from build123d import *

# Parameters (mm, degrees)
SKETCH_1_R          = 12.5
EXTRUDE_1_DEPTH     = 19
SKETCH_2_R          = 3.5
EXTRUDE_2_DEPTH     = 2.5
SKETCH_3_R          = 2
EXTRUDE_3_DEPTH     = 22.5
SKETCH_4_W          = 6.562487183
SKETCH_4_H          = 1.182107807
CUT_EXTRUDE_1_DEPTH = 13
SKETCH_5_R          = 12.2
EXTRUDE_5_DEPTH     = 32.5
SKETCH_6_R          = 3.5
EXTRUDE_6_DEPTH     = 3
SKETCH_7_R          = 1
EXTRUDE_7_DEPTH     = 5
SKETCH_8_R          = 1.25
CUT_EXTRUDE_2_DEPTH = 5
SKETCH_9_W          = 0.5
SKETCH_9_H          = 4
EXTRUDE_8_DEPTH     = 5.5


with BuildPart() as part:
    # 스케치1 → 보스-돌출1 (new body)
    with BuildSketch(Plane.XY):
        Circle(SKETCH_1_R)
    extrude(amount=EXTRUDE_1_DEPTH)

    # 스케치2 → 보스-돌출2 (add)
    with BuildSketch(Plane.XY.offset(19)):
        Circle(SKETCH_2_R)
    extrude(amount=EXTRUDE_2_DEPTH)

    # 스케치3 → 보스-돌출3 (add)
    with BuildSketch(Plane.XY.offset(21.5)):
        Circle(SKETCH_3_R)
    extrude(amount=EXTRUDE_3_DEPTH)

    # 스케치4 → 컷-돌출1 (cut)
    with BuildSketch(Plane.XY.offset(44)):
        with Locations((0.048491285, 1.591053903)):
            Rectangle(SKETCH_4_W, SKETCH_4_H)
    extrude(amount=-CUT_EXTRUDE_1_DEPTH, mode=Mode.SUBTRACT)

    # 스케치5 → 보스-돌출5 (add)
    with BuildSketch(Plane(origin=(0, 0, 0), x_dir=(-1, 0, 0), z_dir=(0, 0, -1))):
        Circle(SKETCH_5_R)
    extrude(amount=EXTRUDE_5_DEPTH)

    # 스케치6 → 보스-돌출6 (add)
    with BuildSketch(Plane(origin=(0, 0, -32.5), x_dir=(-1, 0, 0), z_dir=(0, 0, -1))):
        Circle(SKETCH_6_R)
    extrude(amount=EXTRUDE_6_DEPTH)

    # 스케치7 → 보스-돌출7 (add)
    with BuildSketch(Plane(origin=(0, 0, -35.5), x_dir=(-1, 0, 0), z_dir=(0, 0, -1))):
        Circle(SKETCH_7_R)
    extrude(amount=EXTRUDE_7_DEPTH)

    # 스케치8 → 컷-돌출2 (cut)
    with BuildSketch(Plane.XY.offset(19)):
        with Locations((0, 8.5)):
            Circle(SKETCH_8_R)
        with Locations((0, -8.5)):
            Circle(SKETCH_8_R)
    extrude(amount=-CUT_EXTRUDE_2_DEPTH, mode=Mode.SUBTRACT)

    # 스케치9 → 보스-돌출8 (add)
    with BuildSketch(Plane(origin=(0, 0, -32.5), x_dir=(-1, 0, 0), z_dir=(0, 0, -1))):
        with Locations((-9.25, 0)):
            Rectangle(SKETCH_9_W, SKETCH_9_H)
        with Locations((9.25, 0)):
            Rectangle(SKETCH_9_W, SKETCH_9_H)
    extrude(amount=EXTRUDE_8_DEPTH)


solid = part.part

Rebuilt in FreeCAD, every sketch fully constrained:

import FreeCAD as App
import Part
import Sketcher
from FreeCAD import Vector


def add_polygon(sketch, points):
    """Adds a closed chain of lines whose ends are joined by coincident constraints."""
    first, n = sketch.GeometryCount, len(points)
    for a, b in zip(points, points[1:] + points[:1]):
        sketch.addGeometry(Part.LineSegment(App.Vector(*a, 0), App.Vector(*b, 0)), False)
    for i in range(n):
        sketch.addConstraint(Sketcher.Constraint("Coincident", first + i, 2, first + (i + 1) % n, 1))

doc = App.newDocument("Part")
body = doc.addObject("PartDesign::Body", "Body")

sketch1 = doc.addObject("Sketcher::SketchObject", "Sketch")
body.addObject(sketch1)
sketch1.AttachmentSupport = (doc.XY_Plane, [""])
sketch1.MapMode = "FlatFace"
sketch1.addGeometry(Part.Circle(Vector(0, 0, 0), Vector(0, 0, 1), 12), False)
sketch1.addConstraint([
    Sketcher.Constraint("Coincident", 0, 3, -1, 1),
    Sketcher.Constraint("Diameter", 0, 25.0),
])
pad1 = doc.addObject("PartDesign::Pad", "Pad")
body.addObject(pad1)
pad1.Profile = sketch1
pad1.Length = 19

sketch2 = doc.addObject("Sketcher::SketchObject", "Sketch001")
body.addObject(sketch2)
sketch2.AttachmentSupport = (doc.XY_Plane, [""])
sketch2.MapMode = "FlatFace"
sketch2.AttachmentOffset = App.Placement(Vector(0, 0, 19), App.Rotation())
sketch2.addGeometry(Part.Circle(Vector(0, 0, 0), Vector(0, 0, 1), 3.5), False)
sketch2.addConstraint([
    Sketcher.Constraint("Coincident", 0, 3, -1, 1),
    Sketcher.Constraint("Diameter", 0, 7.0),
])
pad2 = doc.addObject("PartDesign::Pad", "Pad001")
body.addObject(pad2)
pad2.Profile = sketch2
pad2.Length = 2.5

sketch3 = doc.addObject("Sketcher::SketchObject", "Sketch002")
body.addObject(sketch3)
sketch3.AttachmentSupport = (doc.XY_Plane, [""])
sketch3.MapMode = "FlatFace"
sketch3.AttachmentOffset = App.Placement(Vector(0, 0, 21.5), App.Rotation())
sketch3.addGeometry(Part.Circle(Vector(0, 0, 0), Vector(0, 0, 1), 2), False)
sketch3.addConstraint([
    Sketcher.Constraint("Coincident", 0, 3, -1, 1),
    Sketcher.Constraint("Diameter", 0, 4.0),
])
pad3 = doc.addObject("PartDesign::Pad", "Pad002")
body.addObject(pad3)
pad3.Profile = sketch3
pad3.Length = 22.5

sketch4 = doc.addObject("Sketcher::SketchObject", "Sketch003")
body.addObject(sketch4)
sketch4.AttachmentSupport = (doc.XY_Plane, [""])
sketch4.MapMode = "FlatFace"
sketch4.AttachmentOffset = App.Placement(Vector(0, 0, 44), App.Rotation())
add_polygon(sketch4, [(-3.2, 2.2), (-3.2, 1), (3.3, 1), (3.3, 2.2)])
sketch4.addConstraint([
    Sketcher.Constraint("Vertical", 0),
    Sketcher.Constraint("Horizontal", 1),
    Sketcher.Constraint("Vertical", 2),
    Sketcher.Constraint("Horizontal", 3),
    Sketcher.Constraint("DistanceY", -1, 1, 0, 2, 1.0),
    Sketcher.Constraint("DistanceX", 1, 1, 1, 2, 6.562487),
    Sketcher.Constraint("DistanceY", 0, 2, 0, 1, 1.182108),
    Sketcher.Constraint("DistanceX", 0, 2, -1, 1, 3.232752),
])
pocket1 = doc.addObject("PartDesign::Pocket", "Pocket")
body.addObject(pocket1)
pocket1.Profile = sketch4
pocket1.Length = 13

sketch5 = doc.addObject("Sketcher::SketchObject", "Sketch004")
body.addObject(sketch5)
sketch5.AttachmentSupport = (doc.XY_Plane, [""])
sketch5.MapMode = "FlatFace"
sketch5.addGeometry(Part.Circle(Vector(0, 0, 0), Vector(0, 0, 1), 12), False)
sketch5.addConstraint([
    Sketcher.Constraint("Coincident", 0, 3, -1, 1),
    Sketcher.Constraint("Diameter", 0, 24.4),
])
pad4 = doc.addObject("PartDesign::Pad", "Pad003")
body.addObject(pad4)
pad4.Profile = sketch5
pad4.Length = 32.5
pad4.Reversed = True

sketch6 = doc.addObject("Sketcher::SketchObject", "Sketch005")
body.addObject(sketch6)
sketch6.AttachmentSupport = (doc.XY_Plane, [""])
sketch6.MapMode = "FlatFace"
sketch6.AttachmentOffset = App.Placement(Vector(0, 0, -32.5), App.Rotation())
sketch6.addGeometry(Part.Circle(Vector(0, 0, 0), Vector(0, 0, 1), 3.5), False)
sketch6.addConstraint([
    Sketcher.Constraint("Coincident", 0, 3, -1, 1),
    Sketcher.Constraint("Diameter", 0, 7.0),
])
pad5 = doc.addObject("PartDesign::Pad", "Pad004")
body.addObject(pad5)
pad5.Profile = sketch6
pad5.Length = 3
pad5.Reversed = True

sketch7 = doc.addObject("Sketcher::SketchObject", "Sketch006")
body.addObject(sketch7)
sketch7.AttachmentSupport = (doc.XY_Plane, [""])
sketch7.MapMode = "FlatFace"
sketch7.AttachmentOffset = App.Placement(Vector(0, 0, -35.5), App.Rotation())
sketch7.addGeometry(Part.Circle(Vector(0, 0, 0), Vector(0, 0, 1), 1), False)
sketch7.addConstraint([
    Sketcher.Constraint("Coincident", 0, 3, -1, 1),
    Sketcher.Constraint("Diameter", 0, 2.0),
])
pad6 = doc.addObject("PartDesign::Pad", "Pad005")
body.addObject(pad6)
pad6.Profile = sketch7
pad6.Length = 5
pad6.Reversed = True

sketch8 = doc.addObject("Sketcher::SketchObject", "Sketch007")
body.addObject(sketch8)
sketch8.AttachmentSupport = (doc.XY_Plane, [""])
sketch8.MapMode = "FlatFace"
sketch8.AttachmentOffset = App.Placement(Vector(0, 0, 19), App.Rotation())
sketch8.addGeometry([
    Part.Circle(Vector(0, 8.5, 0), Vector(0, 0, 1), 1.2),
    Part.Circle(Vector(0, -8.5, 0), Vector(0, 0, 1), 1.2),
], False)
sketch8.addConstraint([
    Sketcher.Constraint("Equal", 0, 1),
    Sketcher.Constraint("Symmetric", 0, 3, 1, 3, -1, 1),
    Sketcher.Constraint("PointOnObject", 0, 3, -2),
    Sketcher.Constraint("Diameter", 0, 2.5),
    Sketcher.Constraint("DistanceY", 1, 3, 0, 3, 17.0),
])
pocket2 = doc.addObject("PartDesign::Pocket", "Pocket001")
body.addObject(pocket2)
pocket2.Profile = sketch8
pocket2.Length = 5

sketch9 = doc.addObject("Sketcher::SketchObject", "Sketch008")
body.addObject(sketch9)
sketch9.AttachmentSupport = (doc.XY_Plane, [""])
sketch9.MapMode = "FlatFace"
sketch9.AttachmentOffset = App.Placement(Vector(0, 0, -32.5), App.Rotation())
add_polygon(sketch9, [(9.5, 2), (9.5, -2), (9, -2), (9, 2)])
add_polygon(sketch9, [(-9, 2), (-9, -2), (-9.5, -2), (-9.5, 2)])
sketch9.addConstraint([
    Sketcher.Constraint("Vertical", 0),
    Sketcher.Constraint("Horizontal", 1),
    Sketcher.Constraint("Vertical", 2),
    Sketcher.Constraint("Horizontal", 3),
    Sketcher.Constraint("Vertical", 4),
    Sketcher.Constraint("Horizontal", 5),
    Sketcher.Constraint("Vertical", 6),
    Sketcher.Constraint("Horizontal", 7),
    Sketcher.Constraint("Symmetric", 2, 2, 4, 2, -1, 1),
    Sketcher.Constraint("Symmetric", 0, 2, 6, 2, -1, 1),
    Sketcher.Constraint("Horizontal", 1, 2, 4, 2),
    Sketcher.Constraint("DistanceY", 0, 2, 0, 1, 4.0),
    Sketcher.Constraint("DistanceX", 1, 2, 1, 1, 0.5),
    Sketcher.Constraint("DistanceX", -1, 1, 1, 2, 9.0),
])
pad7 = doc.addObject("PartDesign::Pad", "Pad006")
body.addObject(pad7)
pad7.Profile = sketch9
pad7.Length = 5.5
pad7.Reversed = True

doc.recompute()
